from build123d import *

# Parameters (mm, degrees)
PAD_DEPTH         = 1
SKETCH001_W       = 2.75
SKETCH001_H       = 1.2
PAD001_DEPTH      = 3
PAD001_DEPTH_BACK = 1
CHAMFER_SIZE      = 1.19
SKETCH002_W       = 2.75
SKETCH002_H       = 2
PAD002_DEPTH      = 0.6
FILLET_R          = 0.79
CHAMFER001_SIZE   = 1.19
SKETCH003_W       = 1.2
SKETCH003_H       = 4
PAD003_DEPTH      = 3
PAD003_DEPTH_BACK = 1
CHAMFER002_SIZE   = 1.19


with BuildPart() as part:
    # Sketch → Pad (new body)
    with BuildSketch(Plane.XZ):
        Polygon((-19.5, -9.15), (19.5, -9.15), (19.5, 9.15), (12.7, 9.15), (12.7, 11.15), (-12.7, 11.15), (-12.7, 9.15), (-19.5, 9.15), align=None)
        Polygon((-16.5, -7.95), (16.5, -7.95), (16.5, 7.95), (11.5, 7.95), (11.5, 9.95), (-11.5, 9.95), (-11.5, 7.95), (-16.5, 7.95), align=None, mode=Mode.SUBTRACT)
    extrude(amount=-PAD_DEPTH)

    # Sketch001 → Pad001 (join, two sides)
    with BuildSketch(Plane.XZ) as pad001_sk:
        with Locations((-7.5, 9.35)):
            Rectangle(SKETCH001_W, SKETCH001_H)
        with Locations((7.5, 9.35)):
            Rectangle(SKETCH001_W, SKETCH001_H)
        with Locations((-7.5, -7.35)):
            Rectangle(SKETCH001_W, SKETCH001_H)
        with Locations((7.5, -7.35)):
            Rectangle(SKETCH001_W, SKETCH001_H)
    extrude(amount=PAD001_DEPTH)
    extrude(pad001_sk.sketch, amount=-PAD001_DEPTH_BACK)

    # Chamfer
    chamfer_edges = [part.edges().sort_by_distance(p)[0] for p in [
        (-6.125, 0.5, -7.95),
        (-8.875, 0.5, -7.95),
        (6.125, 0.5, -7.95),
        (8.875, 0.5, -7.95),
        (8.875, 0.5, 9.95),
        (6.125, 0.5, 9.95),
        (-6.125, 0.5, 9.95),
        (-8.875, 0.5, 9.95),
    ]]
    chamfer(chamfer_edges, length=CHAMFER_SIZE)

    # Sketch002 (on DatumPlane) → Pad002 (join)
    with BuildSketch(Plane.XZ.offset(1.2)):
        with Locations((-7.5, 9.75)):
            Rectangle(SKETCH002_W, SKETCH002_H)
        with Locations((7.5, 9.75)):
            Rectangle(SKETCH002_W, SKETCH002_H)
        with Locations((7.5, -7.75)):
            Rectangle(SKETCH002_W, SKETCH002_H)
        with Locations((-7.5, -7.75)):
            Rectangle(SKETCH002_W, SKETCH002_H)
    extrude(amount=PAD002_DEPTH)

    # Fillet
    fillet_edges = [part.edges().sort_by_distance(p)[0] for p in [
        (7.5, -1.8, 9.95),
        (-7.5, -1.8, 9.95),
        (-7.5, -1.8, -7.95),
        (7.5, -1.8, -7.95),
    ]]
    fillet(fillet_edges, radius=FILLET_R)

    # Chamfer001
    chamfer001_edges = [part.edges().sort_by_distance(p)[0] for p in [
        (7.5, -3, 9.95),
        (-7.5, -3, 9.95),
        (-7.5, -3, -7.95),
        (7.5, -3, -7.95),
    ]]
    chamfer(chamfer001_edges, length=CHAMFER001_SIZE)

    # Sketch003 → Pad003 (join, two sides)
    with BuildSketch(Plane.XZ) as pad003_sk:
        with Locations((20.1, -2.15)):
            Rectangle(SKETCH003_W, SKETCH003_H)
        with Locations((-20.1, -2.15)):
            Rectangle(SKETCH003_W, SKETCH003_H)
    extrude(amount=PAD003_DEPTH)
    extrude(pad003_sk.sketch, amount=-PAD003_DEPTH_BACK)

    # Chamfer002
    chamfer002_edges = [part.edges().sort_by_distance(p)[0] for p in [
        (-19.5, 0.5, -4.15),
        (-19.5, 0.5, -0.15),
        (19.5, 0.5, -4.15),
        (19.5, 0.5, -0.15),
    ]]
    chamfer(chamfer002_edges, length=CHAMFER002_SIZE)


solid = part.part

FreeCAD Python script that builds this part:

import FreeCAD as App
import Part
import Sketcher

V = App.Vector


def edges_at(feature, points):
    """Names of the edges that pass closest to the given points."""
    edges = feature.Shape.Edges
    near = lambda p: min(range(len(edges)), key=lambda i: edges[i].distToShape(Part.Vertex(*p))[0])
    return sorted({f"Edge{near(p) + 1}" for p in points})

doc = App.newDocument("Part")
body = doc.addObject("PartDesign::Body", "Body")

# Sketch on XZ plane
sketch1 = body.newObject("Sketcher::SketchObject", "Sketch")
sketch1.AttachmentSupport = (doc.getObject("XZ_Plane"), [""])
sketch1.MapMode = "FlatFace"
sketch1.addGeometry([
    Part.LineSegment(V(-19.5, -9.2, 0), V(19.5, -9.2, 0)),  # 0
    Part.LineSegment(V(19.5, -9.2, 0), V(19.5, 9.2, 0)),  # 1
    Part.LineSegment(V(19.5, 9.2, 0), V(12.7, 9.2, 0)),  # 2
    Part.LineSegment(V(12.7, 9.2, 0), V(12.7, 11.2, 0)),  # 3
    Part.LineSegment(V(12.7, 11.2, 0), V(-12.7, 11.2, 0)),  # 4
    Part.LineSegment(V(-12.7, 11.2, 0), V(-12.7, 9.2, 0)),  # 5
    Part.LineSegment(V(-12.7, 9.2, 0), V(-19.5, 9.2, 0)),  # 6
    Part.LineSegment(V(-19.5, 9.2, 0), V(-19.5, -9.2, 0)),  # 7
    Part.LineSegment(V(16.5, -8, 0), V(-16.5, -8, 0)),  # 8
    Part.LineSegment(V(-16.5, -8, 0), V(-16.5, 8, 0)),  # 9
    Part.LineSegment(V(-16.5, 8, 0), V(-11.5, 8, 0)),  # 10
    Part.LineSegment(V(-11.5, 8, 0), V(-11.5, 9.9, 0)),  # 11
    Part.LineSegment(V(-11.5, 9.9, 0), V(11.5, 9.9, 0)),  # 12
    Part.LineSegment(V(11.5, 9.9, 0), V(11.5, 8, 0)),  # 13
    Part.LineSegment(V(11.5, 8, 0), V(16.5, 8, 0)),  # 14
    Part.LineSegment(V(16.5, 8, 0), V(16.5, -8, 0)),  # 15
], False)
sketch1.addConstraint([
    Sketcher.Constraint("Coincident", 0, 2, 1, 1),
    Sketcher.Constraint("Coincident", 1, 2, 2, 1),
    Sketcher.Constraint("Coincident", 2, 2, 3, 1),
    Sketcher.Constraint("Coincident", 3, 2, 4, 1),
    Sketcher.Constraint("Coincident", 4, 2, 5, 1),
    Sketcher.Constraint("Coincident", 5, 2, 6, 1),
    Sketcher.Constraint("Coincident", 6, 2, 7, 1),
    Sketcher.Constraint("Coincident", 7, 2, 0, 1),
    Sketcher.Constraint("Coincident", 8, 2, 9, 1),
    Sketcher.Constraint("Coincident", 9, 2, 10, 1),
    Sketcher.Constraint("Coincident", 10, 2, 11, 1),
    Sketcher.Constraint("Coincident", 11, 2, 12, 1),
    Sketcher.Constraint("Coincident", 12, 2, 13, 1),
    Sketcher.Constraint("Coincident", 13, 2, 14, 1),
    Sketcher.Constraint("Coincident", 14, 2, 15, 1),
    Sketcher.Constraint("Coincident", 15, 2, 8, 1),
    Sketcher.Constraint("Horizontal", 0),
    Sketcher.Constraint("Vertical", 1),
    Sketcher.Constraint("Horizontal", 2),
    Sketcher.Constraint("Vertical", 3),
    Sketcher.Constraint("Horizontal", 4),
    Sketcher.Constraint("Vertical", 5),
    Sketcher.Constraint("Horizontal", 6),
    Sketcher.Constraint("Vertical", 7),
    Sketcher.Constraint("Horizontal", 8),
    Sketcher.Constraint("Vertical", 9),
    Sketcher.Constraint("Horizontal", 10),
    Sketcher.Constraint("Vertical", 11),
    Sketcher.Constraint("Horizontal", 12),
    Sketcher.Constraint("Vertical", 13),
    Sketcher.Constraint("Horizontal", 14),
    Sketcher.Constraint("Vertical", 15),
    Sketcher.Constraint("Symmetric", 0, 2, 6, 2, -1, 1),
    Sketcher.Constraint("Symmetric", 8, 2, 14, 2, -1, 1),
    Sketcher.Constraint("Symmetric", 2, 2, 5, 2, -2),
    Sketcher.Constraint("Symmetric", 10, 2, 13, 2, -2),
    Sketcher.Constraint("Equal", 5, 11),
    Sketcher.Constraint("DistanceX", 0, 1, 0, 2, 39.0),
    Sketcher.Constraint("DistanceX", 8, 2, 8, 1, 33.0),
    Sketcher.Constraint("DistanceX", 10, 1, 10, 2, 5.0),
    Sketcher.Constraint("DistanceY", 3, 1, 3, 2, 2.0),
    Sketcher.Constraint("DistanceX", 2, 2, 2, 1, 6.8),
    Sketcher.Constraint("DistanceY", 1, 1, 1, 2, 18.3),
    Sketcher.Constraint("DistanceY", 9, 1, 9, 2, 15.9),
])
pad1 = body.newObject("PartDesign::Pad", "Pad")
pad1.Profile = sketch1
pad1.Length = 1
pad1.Reversed = True

# Sketch on XZ plane
sketch2 = body.newObject("Sketcher::SketchObject", "Sketch001")
sketch2.AttachmentSupport = (doc.getObject("XZ_Plane"), [""])
sketch2.MapMode = "FlatFace"
sketch2.addGeometry([
    Part.LineSegment(V(-8.9, 9.9, 0), V(-8.9, 8.8, 0)),  # 0
    Part.LineSegment(V(-8.9, 8.8, 0), V(-6.1, 8.8, 0)),  # 1
    Part.LineSegment(V(-6.1, 8.8, 0), V(-6.1, 9.9, 0)),  # 2
    Part.LineSegment(V(-6.1, 9.9, 0), V(-8.9, 9.9, 0)),  # 3
    Part.LineSegment(V(6.1, 9.9, 0), V(6.1, 8.8, 0)),  # 4
    Part.LineSegment(V(6.1, 8.8, 0), V(8.9, 8.8, 0)),  # 5
    Part.LineSegment(V(8.9, 8.8, 0), V(8.9, 9.9, 0)),  # 6
    Part.LineSegment(V(8.9, 9.9, 0), V(6.1, 9.9, 0)),  # 7
    Part.LineSegment(V(-8.9, -6.8, 0), V(-8.9, -8, 0)),  # 8
    Part.LineSegment(V(-8.9, -8, 0), V(-6.1, -8, 0)),  # 9
    Part.LineSegment(V(-6.1, -8, 0), V(-6.1, -6.8, 0)),  # 10
    Part.LineSegment(V(-6.1, -6.8, 0), V(-8.9, -6.8, 0)),  # 11
    Part.LineSegment(V(6.1, -6.8, 0), V(6.1, -8, 0)),  # 12
    Part.LineSegment(V(6.1, -8, 0), V(8.9, -8, 0)),  # 13
    Part.LineSegment(V(8.9, -8, 0), V(8.9, -6.8, 0)),  # 14
    Part.LineSegment(V(8.9, -6.8, 0), V(6.1, -6.8, 0)),  # 15
], False)
sketch2.addConstraint([
    Sketcher.Constraint("Coincident", 0, 2, 1, 1),
    Sketcher.Constraint("Coincident", 1, 2, 2, 1),
    Sketcher.Constraint("Coincident", 2, 2, 3, 1),
    Sketcher.Constraint("Coincident", 3, 2, 0, 1),
    Sketcher.Constraint("Coincident", 4, 2, 5, 1),
    Sketcher.Constraint("Coincident", 5, 2, 6, 1),
    Sketcher.Constraint("Coincident", 6, 2, 7, 1),
    Sketcher.Constraint("Coincident", 7, 2, 4, 1),
    Sketcher.Constraint("Coincident", 8, 2, 9, 1),
    Sketcher.Constraint("Coincident", 9, 2, 10, 1),
    Sketcher.Constraint("Coincident", 10, 2, 11, 1),
    Sketcher.Constraint("Coincident", 11, 2, 8, 1),
    Sketcher.Constraint("Coincident", 12, 2, 13, 1),
    Sketcher.Constraint("Coincident", 13, 2, 14, 1),
    Sketcher.Constraint("Coincident", 14, 2, 15, 1),
    Sketcher.Constraint("Coincident", 15, 2, 12, 1),
    Sketcher.Constraint("Vertical", 0),
    Sketcher.Constraint("Horizontal", 1),
    Sketcher.Constraint("Vertical", 2),
    Sketcher.Constraint("Horizontal", 3),
    Sketcher.Constraint("Vertical", 4),
    Sketcher.Constraint("Horizontal", 5),
    Sketcher.Constraint("Vertical", 6),
    Sketcher.Constraint("Horizontal", 7),
    Sketcher.Constraint("Vertical", 8),
    Sketcher.Constraint("Horizontal", 9),
    Sketcher.Constraint("Vertical", 10),
    Sketcher.Constraint("Horizontal", 11),
    Sketcher.Constraint("Vertical", 12),
    Sketcher.Constraint("Horizontal", 13),
    Sketcher.Constraint("Vertical", 14),
    Sketcher.Constraint("Horizontal", 15),
    Sketcher.Constraint("Symmetric", 1, 2, 4, 2, -2),
    Sketcher.Constraint("Symmetric", 3, 2, 6, 2, -2),
    Sketcher.Constraint("Symmetric", 9, 2, 12, 2, -2),
    Sketcher.Constraint("Symmetric", 11, 2, 14, 2, -2),
    Sketcher.Constraint("Vertical", 3, 2, 8, 2),
    Sketcher.Constraint("Vertical", 2, 2, 9, 2),
    Sketcher.Constraint("Equal", 6, 8),
    Sketcher.Constraint("DistanceY", 0, 2, 0, 1, 1.2),
    Sketcher.Constraint("DistanceX", 0, 2, 4, 2, 15.0),
    Sketcher.Constraint("DistanceX", 1, 1, 1, 2, 2.75),
    Sketcher.Constraint("DistanceY", 8, 2, 0, 2, 16.7),
    Sketcher.Constraint("DistanceY", -1, 1, 0, 2, 8.75),
])
pad2 = body.newObject("PartDesign::Pad", "Pad001")
pad2.Profile = sketch2
pad2.Type = "TwoLengths"
pad2.Length = 3
pad2.Length2 = 1
doc.recompute()

chamfer = body.newObject("PartDesign::Chamfer", "Chamfer")
chamfer.Base = (pad2, edges_at(pad2, [
    (-6.125, 0.5, -7.95),
    (-8.875, 0.5, -7.95),
    (6.125, 0.5, -7.95),
    (8.875, 0.5, -7.95),
    (8.875, 0.5, 9.95),
    (6.125, 0.5, 9.95),
    (-6.125, 0.5, 9.95),
    (-8.875, 0.5, 9.95),
]))
chamfer.Size = 1.19

# Sketch on XZ plane
sketch3 = body.newObject("Sketcher::SketchObject", "Sketch002")
sketch3.AttachmentSupport = (doc.getObject("XZ_Plane"), [""])
sketch3.MapMode = "FlatFace"
sketch3.AttachmentOffset = App.Placement(V(0, 0, 1.2), App.Rotation())
sketch3.addGeometry([
    Part.LineSegment(V(-8.9, 10.8, 0), V(-8.9, 8.8, 0)),  # 0
    Part.LineSegment(V(-8.9, 8.8, 0), V(-6.1, 8.8, 0)),  # 1
    Part.LineSegment(V(-6.1, 8.8, 0), V(-6.1, 10.8, 0)),  # 2
    Part.LineSegment(V(-6.1, 10.8, 0), V(-8.9, 10.8, 0)),  # 3
    Part.LineSegment(V(6.1, 10.8, 0), V(6.1, 8.8, 0)),  # 4
    Part.LineSegment(V(6.1, 8.8, 0), V(8.9, 8.8, 0)),  # 5
    Part.LineSegment(V(8.9, 8.8, 0), V(8.9, 10.8, 0)),  # 6
    Part.LineSegment(V(8.9, 10.8, 0), V(6.1, 10.8, 0)),  # 7
    Part.LineSegment(V(6.1, -6.8, 0), V(6.1, -8.8, 0)),  # 8
    Part.LineSegment(V(6.1, -8.8, 0), V(8.9, -8.8, 0)),  # 9
    Part.LineSegment(V(8.9, -8.8, 0), V(8.9, -6.8, 0)),  # 10
    Part.LineSegment(V(8.9, -6.8, 0), V(6.1, -6.8, 0)),  # 11
    Part.LineSegment(V(-8.9, -6.8, 0), V(-8.9, -8.8, 0)),  # 12
    Part.LineSegment(V(-8.9, -8.8, 0), V(-6.1, -8.8, 0)),  # 13
    Part.LineSegment(V(-6.1, -8.8, 0), V(-6.1, -6.8, 0)),  # 14
    Part.LineSegment(V(-6.1, -6.8, 0), V(-8.9, -6.8, 0)),  # 15
], False)
sketch3.addConstraint([
    Sketcher.Constraint("Coincident", 0, 2, 1, 1),
    Sketcher.Constraint("Coincident", 1, 2, 2, 1),
    Sketcher.Constraint("Coincident", 2, 2, 3, 1),
    Sketcher.Constraint("Coincident", 3, 2, 0, 1),
    Sketcher.Constraint("Coincident", 4, 2, 5, 1),
    Sketcher.Constraint("Coincident", 5, 2, 6, 1),
    Sketcher.Constraint("Coincident", 6, 2, 7, 1),
    Sketcher.Constraint("Coincident", 7, 2, 4, 1),
    Sketcher.Constraint("Coincident", 8, 2, 9, 1),
    Sketcher.Constraint("Coincident", 9, 2, 10, 1),
    Sketcher.Constraint("Coincident", 10, 2, 11, 1),
    Sketcher.Constraint("Coincident", 11, 2, 8, 1),
    Sketcher.Constraint("Coincident", 12, 2, 13, 1),
    Sketcher.Constraint("Coincident", 13, 2, 14, 1),
    Sketcher.Constraint("Coincident", 14, 2, 15, 1),
    Sketcher.Constraint("Coincident", 15, 2, 12, 1),
    Sketcher.Constraint("Vertical", 0),
    Sketcher.Constraint("Horizontal", 1),
    Sketcher.Constraint("Vertical", 2),
    Sketcher.Constraint("Horizontal", 3),
    Sketcher.Constraint("Vertical", 4),
    Sketcher.Constraint("Horizontal", 5),
    Sketcher.Constraint("Vertical", 6),
    Sketcher.Constraint("Horizontal", 7),
    Sketcher.Constraint("Vertical", 8),
    Sketcher.Constraint("Horizontal", 9),
    Sketcher.Constraint("Vertical", 10),
    Sketcher.Constraint("Horizontal", 11),
    Sketcher.Constraint("Vertical", 12),
    Sketcher.Constraint("Horizontal", 13),
    Sketcher.Constraint("Vertical", 14),
    Sketcher.Constraint("Horizontal", 15),
    Sketcher.Constraint("Symmetric", 1, 2, 8, 2, -1, 1),
    Sketcher.Constraint("Symmetric", 5, 2, 12, 2, -1, 1),
    Sketcher.Constraint("Symmetric", 1, 2, 4, 2, -2),
    Sketcher.Constraint("Symmetric", 3, 2, 6, 2, -2),
    Sketcher.Constraint("Symmetric", 11, 2, 14, 2, -2),
    Sketcher.Constraint("Vertical", 6, 2, 9, 2),
    Sketcher.Constraint("Equal", 6, 8),
    Sketcher.Constraint("DistanceY", 0, 2, 0, 1, 2.0),
    Sketcher.Constraint("DistanceX", 0, 2, 4, 2, 15.0),
    Sketcher.Constraint("DistanceX", 1, 1, 1, 2, 2.75),
    Sketcher.Constraint("DistanceY", 8, 2, 4, 2, 17.5),
])
pad3 = body.newObject("PartDesign::Pad", "Pad002")
pad3.Profile = sketch3
pad3.Length = 0.6
doc.recompute()

fillet = body.newObject("PartDesign::Fillet", "Fillet")
fillet.Base = (pad3, edges_at(pad3, [
    (7.5, -1.8, 9.95),
    (-7.5, -1.8, 9.95),
    (-7.5, -1.8, -7.95),
    (7.5, -1.8, -7.95),
]))
fillet.Radius = 0.79
doc.recompute()

chamfer2 = body.newObject("PartDesign::Chamfer", "Chamfer001")
chamfer2.Base = (fillet, edges_at(fillet, [
    (7.5, -3, 9.95),
    (-7.5, -3, 9.95),
    (-7.5, -3, -7.95),
    (7.5, -3, -7.95),
]))
chamfer2.Size = 1.19

# Sketch on XZ plane
sketch4 = body.newObject("Sketcher::SketchObject", "Sketch003")
sketch4.AttachmentSupport = (doc.getObject("XZ_Plane"), [""])
sketch4.MapMode = "FlatFace"
sketch4.addGeometry([
    Part.LineSegment(V(19.5, -0.1, 0), V(19.5, -4.2, 0)),  # 0
    Part.LineSegment(V(19.5, -4.2, 0), V(20.7, -4.2, 0)),  # 1
    Part.LineSegment(V(20.7, -4.2, 0), V(20.7, -0.1, 0)),  # 2
    Part.LineSegment(V(20.7, -0.1, 0), V(19.5, -0.1, 0)),  # 3
    Part.LineSegment(V(-20.7, -0.1, 0), V(-20.7, -4.2, 0)),  # 4
    Part.LineSegment(V(-20.7, -4.2, 0), V(-19.5, -4.2, 0)),  # 5
    Part.LineSegment(V(-19.5, -4.2, 0), V(-19.5, -0.1, 0)),  # 6
    Part.LineSegment(V(-19.5, -0.1, 0), V(-20.7, -0.1, 0)),  # 7
], False)
sketch4.addConstraint([
    Sketcher.Constraint("Coincident", 0, 2, 1, 1),
    Sketcher.Constraint("Coincident", 1, 2, 2, 1),
    Sketcher.Constraint("Coincident", 2, 2, 3, 1),
    Sketcher.Constraint("Coincident", 3, 2, 0, 1),
    Sketcher.Constraint("Coincident", 4, 2, 5, 1),
    Sketcher.Constraint("Coincident", 5, 2, 6, 1),
    Sketcher.Constraint("Coincident", 6, 2, 7, 1),
    Sketcher.Constraint("Coincident", 7, 2, 4, 1),
    Sketcher.Constraint("Vertical", 0),
    Sketcher.Constraint("Horizontal", 1),
    Sketcher.Constraint("Vertical", 2),
    Sketcher.Constraint("Horizontal", 3),
    Sketcher.Constraint("Vertical", 4),
    Sketcher.Constraint("Horizontal", 5),
    Sketcher.Constraint("Vertical", 6),
    Sketcher.Constraint("Horizontal", 7),
    Sketcher.Constraint("Symmetric", 1, 2, 4, 2, -2),
    Sketcher.Constraint("Symmetric", 3, 2, 6, 2, -2),
    Sketcher.Constraint("DistanceY", 0, 2, 0, 1, 4.0),
    Sketcher.Constraint("DistanceX", 1, 1, 1, 2, 1.2),
    Sketcher.Constraint("DistanceX", 5, 2, 0, 2, 39.0),
    Sketcher.Constraint("DistanceY", 0, 2, -1, 1, 4.15),
])
pad4 = body.newObject("PartDesign::Pad", "Pad003")
pad4.Profile = sketch4
pad4.Type = "TwoLengths"
pad4.Length = 3
pad4.Length2 = 1
doc.recompute()

chamfer3 = body.newObject("PartDesign::Chamfer", "Chamfer002")
chamfer3.Base = (pad4, edges_at(pad4, [
    (-19.5, 0.5, -4.15),
    (-19.5, 0.5, -0.15),
    (19.5, 0.5, -4.15),
    (19.5, 0.5, -0.15),
]))
chamfer3.Size = 1.19

doc.recompute()
